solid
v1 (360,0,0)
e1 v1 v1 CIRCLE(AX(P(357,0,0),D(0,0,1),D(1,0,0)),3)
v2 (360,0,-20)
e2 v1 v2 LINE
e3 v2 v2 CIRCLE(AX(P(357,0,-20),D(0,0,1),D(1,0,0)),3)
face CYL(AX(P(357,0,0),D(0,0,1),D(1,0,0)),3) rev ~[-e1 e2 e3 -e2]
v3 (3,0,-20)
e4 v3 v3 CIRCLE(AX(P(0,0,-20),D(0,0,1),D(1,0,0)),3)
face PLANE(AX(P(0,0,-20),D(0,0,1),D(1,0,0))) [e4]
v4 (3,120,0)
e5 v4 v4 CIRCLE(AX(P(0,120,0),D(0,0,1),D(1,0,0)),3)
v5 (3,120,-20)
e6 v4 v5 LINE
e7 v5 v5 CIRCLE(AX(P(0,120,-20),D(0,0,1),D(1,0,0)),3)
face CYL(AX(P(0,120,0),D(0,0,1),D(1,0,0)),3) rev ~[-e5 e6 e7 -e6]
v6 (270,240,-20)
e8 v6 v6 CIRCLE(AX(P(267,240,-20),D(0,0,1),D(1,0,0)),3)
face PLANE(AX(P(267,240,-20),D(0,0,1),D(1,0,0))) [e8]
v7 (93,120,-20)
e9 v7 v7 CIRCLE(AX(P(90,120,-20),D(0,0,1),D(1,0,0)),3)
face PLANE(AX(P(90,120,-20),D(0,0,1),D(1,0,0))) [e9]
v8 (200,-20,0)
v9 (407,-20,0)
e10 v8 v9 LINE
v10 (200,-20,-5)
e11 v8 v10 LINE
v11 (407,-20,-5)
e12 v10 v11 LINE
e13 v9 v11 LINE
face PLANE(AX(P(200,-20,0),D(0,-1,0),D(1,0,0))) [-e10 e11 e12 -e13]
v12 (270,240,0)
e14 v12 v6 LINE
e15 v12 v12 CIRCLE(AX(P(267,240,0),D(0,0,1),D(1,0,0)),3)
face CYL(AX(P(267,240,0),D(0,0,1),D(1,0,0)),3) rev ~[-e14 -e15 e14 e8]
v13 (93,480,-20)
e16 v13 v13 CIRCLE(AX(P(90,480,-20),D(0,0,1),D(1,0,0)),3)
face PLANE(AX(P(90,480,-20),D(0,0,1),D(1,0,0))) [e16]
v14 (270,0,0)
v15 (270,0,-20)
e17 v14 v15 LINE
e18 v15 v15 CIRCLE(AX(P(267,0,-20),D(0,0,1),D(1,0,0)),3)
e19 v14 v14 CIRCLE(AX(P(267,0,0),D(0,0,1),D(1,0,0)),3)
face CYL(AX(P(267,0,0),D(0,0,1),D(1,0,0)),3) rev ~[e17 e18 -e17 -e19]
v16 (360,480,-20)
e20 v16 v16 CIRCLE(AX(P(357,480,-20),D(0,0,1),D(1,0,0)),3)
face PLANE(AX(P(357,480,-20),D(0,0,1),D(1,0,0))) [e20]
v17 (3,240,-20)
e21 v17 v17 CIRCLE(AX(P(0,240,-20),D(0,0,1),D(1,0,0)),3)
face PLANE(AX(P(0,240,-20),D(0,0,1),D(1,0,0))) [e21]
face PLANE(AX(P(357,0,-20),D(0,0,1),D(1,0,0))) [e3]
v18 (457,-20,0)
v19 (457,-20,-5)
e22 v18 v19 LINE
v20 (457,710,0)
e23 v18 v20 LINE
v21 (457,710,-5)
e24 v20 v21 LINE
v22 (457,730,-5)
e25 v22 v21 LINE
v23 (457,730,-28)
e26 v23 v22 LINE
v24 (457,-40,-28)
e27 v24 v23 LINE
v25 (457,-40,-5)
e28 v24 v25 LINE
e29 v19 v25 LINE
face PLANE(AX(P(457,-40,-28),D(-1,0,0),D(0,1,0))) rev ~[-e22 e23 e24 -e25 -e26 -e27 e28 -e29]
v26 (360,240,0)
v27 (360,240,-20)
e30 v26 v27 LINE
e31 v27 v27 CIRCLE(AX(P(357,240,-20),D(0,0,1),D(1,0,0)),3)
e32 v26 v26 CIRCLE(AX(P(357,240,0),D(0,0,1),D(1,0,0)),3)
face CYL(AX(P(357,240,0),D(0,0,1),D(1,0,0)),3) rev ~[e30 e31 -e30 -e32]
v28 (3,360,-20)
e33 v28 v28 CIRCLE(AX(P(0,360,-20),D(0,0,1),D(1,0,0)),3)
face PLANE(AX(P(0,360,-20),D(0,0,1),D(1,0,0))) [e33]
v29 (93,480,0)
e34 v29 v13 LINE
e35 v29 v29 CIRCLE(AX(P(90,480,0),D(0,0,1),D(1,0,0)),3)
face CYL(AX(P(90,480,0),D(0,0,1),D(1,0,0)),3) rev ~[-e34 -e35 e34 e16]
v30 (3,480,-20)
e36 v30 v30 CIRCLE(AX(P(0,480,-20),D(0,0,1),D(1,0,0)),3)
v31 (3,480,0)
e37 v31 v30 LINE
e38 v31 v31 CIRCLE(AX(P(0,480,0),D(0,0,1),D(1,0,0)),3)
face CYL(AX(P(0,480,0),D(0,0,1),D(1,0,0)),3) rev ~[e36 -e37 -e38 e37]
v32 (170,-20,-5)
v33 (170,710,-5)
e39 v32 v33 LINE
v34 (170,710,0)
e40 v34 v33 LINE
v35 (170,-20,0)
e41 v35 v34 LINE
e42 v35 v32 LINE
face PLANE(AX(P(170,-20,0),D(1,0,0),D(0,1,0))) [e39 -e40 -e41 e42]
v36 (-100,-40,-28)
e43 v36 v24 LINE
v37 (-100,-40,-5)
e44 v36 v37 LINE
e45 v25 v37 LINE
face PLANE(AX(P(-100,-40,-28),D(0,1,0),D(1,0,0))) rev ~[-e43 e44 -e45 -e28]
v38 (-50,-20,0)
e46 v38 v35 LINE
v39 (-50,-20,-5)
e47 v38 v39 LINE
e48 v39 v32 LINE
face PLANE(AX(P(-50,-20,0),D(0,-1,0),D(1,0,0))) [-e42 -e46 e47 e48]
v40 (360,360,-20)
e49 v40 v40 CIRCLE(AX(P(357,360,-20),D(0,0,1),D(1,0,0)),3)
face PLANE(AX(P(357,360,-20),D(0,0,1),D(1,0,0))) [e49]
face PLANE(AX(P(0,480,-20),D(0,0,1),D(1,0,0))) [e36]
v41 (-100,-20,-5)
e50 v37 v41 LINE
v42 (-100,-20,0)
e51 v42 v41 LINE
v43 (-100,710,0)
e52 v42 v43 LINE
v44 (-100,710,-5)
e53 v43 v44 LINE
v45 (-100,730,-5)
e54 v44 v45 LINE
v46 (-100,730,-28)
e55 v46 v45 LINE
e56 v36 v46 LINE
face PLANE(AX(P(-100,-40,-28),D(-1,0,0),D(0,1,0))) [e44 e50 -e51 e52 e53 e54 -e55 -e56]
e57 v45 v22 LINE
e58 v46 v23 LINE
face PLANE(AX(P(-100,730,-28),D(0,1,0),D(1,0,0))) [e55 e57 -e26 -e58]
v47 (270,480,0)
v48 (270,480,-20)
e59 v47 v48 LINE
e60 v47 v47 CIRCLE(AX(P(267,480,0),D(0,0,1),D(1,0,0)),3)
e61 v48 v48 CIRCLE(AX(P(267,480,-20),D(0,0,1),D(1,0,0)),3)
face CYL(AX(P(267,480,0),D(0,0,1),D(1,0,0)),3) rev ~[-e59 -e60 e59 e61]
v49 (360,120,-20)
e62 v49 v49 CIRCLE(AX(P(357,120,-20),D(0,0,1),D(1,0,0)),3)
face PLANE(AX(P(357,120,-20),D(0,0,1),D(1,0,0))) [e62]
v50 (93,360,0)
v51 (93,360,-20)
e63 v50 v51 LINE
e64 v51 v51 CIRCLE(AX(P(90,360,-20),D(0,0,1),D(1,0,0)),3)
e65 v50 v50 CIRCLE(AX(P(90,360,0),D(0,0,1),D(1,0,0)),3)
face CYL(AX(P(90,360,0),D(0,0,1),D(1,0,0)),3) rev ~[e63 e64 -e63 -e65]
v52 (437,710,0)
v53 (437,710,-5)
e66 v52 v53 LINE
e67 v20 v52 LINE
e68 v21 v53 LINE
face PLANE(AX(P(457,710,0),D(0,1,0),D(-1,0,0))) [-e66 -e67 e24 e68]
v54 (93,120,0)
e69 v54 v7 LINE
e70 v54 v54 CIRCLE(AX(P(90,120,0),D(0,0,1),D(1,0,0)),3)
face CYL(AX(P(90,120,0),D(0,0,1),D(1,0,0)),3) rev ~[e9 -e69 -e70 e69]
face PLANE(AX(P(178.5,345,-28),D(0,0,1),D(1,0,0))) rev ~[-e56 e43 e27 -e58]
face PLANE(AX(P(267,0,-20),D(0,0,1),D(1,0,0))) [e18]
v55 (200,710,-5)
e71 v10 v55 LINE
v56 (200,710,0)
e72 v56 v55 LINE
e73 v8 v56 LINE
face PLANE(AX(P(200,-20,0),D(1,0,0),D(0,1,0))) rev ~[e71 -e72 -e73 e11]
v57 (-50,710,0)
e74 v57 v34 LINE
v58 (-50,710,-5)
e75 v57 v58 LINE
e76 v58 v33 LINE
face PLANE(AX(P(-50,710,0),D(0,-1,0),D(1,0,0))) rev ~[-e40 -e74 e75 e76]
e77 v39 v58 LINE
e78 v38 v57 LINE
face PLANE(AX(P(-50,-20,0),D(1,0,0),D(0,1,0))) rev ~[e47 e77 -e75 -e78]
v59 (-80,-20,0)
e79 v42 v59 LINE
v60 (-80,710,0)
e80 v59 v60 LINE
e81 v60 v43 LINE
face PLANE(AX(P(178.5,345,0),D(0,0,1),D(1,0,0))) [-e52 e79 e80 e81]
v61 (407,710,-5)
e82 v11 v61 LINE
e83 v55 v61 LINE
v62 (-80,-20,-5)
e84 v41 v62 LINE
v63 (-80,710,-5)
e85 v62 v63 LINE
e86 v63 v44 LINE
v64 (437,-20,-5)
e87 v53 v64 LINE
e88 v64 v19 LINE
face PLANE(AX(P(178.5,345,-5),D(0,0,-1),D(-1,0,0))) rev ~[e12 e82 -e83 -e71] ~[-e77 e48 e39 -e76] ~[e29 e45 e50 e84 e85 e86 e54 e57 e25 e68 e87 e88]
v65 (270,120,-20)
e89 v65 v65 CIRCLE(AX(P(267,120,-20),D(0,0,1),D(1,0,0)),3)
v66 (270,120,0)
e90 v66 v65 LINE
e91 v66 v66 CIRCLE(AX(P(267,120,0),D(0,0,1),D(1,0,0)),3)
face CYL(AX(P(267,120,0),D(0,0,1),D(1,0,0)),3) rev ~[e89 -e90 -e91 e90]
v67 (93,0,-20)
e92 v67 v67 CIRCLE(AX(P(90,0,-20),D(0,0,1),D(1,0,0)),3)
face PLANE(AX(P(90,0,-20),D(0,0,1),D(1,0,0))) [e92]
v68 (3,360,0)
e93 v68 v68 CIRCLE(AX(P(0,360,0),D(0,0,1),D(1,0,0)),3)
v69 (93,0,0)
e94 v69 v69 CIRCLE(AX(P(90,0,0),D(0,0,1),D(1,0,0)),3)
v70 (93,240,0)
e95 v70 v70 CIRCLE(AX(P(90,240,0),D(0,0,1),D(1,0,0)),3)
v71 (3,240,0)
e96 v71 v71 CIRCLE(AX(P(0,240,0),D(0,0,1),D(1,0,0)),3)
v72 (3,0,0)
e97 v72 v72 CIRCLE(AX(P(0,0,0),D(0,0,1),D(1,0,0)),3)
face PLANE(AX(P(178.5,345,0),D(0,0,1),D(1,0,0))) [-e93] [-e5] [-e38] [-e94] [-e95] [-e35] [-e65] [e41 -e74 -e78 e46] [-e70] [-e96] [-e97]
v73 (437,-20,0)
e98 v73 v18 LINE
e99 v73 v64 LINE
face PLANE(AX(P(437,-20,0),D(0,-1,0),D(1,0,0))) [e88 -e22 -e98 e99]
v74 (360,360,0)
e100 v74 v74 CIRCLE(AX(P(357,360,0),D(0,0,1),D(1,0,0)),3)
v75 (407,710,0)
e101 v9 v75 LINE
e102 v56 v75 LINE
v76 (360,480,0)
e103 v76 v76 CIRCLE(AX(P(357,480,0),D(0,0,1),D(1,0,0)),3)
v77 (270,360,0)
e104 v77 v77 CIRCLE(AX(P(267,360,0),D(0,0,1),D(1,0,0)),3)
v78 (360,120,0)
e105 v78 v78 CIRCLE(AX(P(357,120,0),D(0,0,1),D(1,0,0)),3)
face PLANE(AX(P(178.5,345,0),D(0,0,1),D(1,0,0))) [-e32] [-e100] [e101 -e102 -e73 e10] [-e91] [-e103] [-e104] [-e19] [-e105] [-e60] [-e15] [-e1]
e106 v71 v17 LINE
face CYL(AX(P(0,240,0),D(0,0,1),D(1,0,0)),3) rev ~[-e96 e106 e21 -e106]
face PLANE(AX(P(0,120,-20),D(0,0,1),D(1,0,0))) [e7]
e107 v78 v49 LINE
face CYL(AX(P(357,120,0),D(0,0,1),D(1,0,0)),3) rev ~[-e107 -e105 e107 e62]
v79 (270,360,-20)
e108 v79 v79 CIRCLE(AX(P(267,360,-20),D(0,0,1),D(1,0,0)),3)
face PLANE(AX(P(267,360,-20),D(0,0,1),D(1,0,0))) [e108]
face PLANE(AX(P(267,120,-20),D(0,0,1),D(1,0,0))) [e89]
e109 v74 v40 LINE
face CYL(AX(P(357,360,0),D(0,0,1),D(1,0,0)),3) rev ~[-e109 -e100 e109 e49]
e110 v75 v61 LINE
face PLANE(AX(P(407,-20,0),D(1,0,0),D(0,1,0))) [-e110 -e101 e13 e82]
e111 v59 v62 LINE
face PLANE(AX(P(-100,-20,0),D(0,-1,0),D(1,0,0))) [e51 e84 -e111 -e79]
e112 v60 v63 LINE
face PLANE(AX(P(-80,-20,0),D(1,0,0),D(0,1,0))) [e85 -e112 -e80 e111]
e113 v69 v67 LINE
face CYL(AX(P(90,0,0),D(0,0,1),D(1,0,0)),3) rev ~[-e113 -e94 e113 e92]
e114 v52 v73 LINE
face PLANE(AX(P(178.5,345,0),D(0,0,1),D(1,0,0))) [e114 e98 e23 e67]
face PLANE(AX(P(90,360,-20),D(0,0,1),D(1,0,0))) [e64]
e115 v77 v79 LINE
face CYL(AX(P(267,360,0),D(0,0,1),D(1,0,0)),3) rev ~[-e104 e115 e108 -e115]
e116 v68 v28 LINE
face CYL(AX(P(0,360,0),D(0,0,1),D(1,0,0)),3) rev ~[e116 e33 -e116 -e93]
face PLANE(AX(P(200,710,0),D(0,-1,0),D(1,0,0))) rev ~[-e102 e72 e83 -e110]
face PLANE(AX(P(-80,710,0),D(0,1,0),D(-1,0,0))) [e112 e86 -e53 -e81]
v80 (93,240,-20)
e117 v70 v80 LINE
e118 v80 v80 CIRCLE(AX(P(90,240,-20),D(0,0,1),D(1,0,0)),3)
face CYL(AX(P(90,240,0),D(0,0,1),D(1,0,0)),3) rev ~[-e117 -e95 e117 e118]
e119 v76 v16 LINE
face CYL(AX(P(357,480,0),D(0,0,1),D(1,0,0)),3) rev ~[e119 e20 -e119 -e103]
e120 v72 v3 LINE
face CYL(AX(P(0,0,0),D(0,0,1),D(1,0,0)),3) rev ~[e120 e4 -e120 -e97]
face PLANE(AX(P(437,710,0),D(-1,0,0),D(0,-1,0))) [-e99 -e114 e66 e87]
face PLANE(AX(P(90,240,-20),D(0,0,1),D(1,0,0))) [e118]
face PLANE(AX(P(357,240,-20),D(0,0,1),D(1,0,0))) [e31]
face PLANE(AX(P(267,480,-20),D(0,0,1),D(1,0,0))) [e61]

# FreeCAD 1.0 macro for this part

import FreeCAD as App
import Part
import Sketcher


def add_polygon(sketch, points):
    """Adds a closed chain of lines whose ends are joined by coincident constraints."""
    first, n = sketch.GeometryCount, len(points)
    for a, b in zip(points, points[1:] + points[:1]):
        sketch.addGeometry(Part.LineSegment(App.Vector(*a, 0), App.Vector(*b, 0)), False)
    for i in range(n):
        sketch.addConstraint(Sketcher.Constraint("Coincident", first + i, 2, first + (i + 1) % n, 1))

doc = App.newDocument("Part")
body = doc.addObject("PartDesign::Body", "Body")

sketch1 = body.newObject("Sketcher::SketchObject", "Sketch")
sketch1.AttachmentSupport = (doc.getObject("XY_Plane"), [""])
sketch1.MapMode = "FlatFace"
add_polygon(sketch1, [(0, 770), (0, 0), (557, 0), (557, 770)])
sketch1.addConstraint([
    Sketcher.Constraint("Vertical", 0),
    Sketcher.Constraint("Horizontal", 1),
    Sketcher.Constraint("Vertical", 2),
    Sketcher.Constraint("Horizontal", 3),
    Sketcher.Constraint("Coincident", 0, 2, -1, 1),
    Sketcher.Constraint("DistanceX", 1, 1, 1, 2, 557.0),
    Sketcher.Constraint("DistanceY", 0, 2, 0, 1, 770.0),
])
pad1 = body.newObject("PartDesign::Pad", "Pad")
pad1.Profile = sketch1
pad1.Length = 28

sketch2 = body.newObject("Sketcher::SketchObject", "Sketch001")
sketch2.AttachmentSupport = (doc.getObject("XY_Plane"), [""])
sketch2.MapMode = "FlatFace"
sketch2.AttachmentOffset = App.Placement(App.Vector(0, 0, 28), App.Rotation())
add_polygon(sketch2, [(557, 770), (0, 770), (0, 750), (20, 750), (20, 20), (0, 20), (0, 0), (557, 0), (557, 20), (537, 20), (537, 750), (557, 750)])
add_polygon(sketch2, [(300, 20), (300, 750), (507, 750), (507, 20)])
add_polygon(sketch2, [(50, 20), (50, 750), (270, 750), (270, 20)])
sketch2.addConstraint([
    Sketcher.Constraint("Horizontal", 0),
    Sketcher.Constraint("Vertical", 1),
    Sketcher.Constraint("Horizontal", 2),
    Sketcher.Constraint("Vertical", 3),
    Sketcher.Constraint("Horizontal", 4),
    Sketcher.Constraint("Vertical", 5),
    Sketcher.Constraint("Horizontal", 6),
    Sketcher.Constraint("Vertical", 7),
    Sketcher.Constraint("Horizontal", 8),
    Sketcher.Constraint("Vertical", 9),
    Sketcher.Constraint("Horizontal", 10),
    Sketcher.Constraint("Vertical", 11),
    Sketcher.Constraint("Vertical", 12),
    Sketcher.Constraint("Horizontal", 13),
    Sketcher.Constraint("Vertical", 14),
    Sketcher.Constraint("Horizontal", 15),
    Sketcher.Constraint("Vertical", 16),
    Sketcher.Constraint("Horizontal", 17),
    Sketcher.Constraint("Vertical", 18),
    Sketcher.Constraint("Horizontal", 19),
    Sketcher.Constraint("Coincident", 5, 2, -1, 1),
    Sketcher.Constraint("PointOnObject", 0, 2, -2),
    Sketcher.Constraint("Horizontal", 4, 2, 7, 2),
    Sketcher.Constraint("Horizontal", 2, 2, 9, 2),
    Sketcher.Constraint("Horizontal", 10, 2, 12, 2),
    Sketcher.Constraint("Horizontal", 8, 2, 14, 2),
    Sketcher.Constraint("Horizontal", 13, 2, 16, 2),
    Sketcher.Constraint("Horizontal", 15, 2, 18, 2),
    Sketcher.Constraint("Vertical", 7, 2, 10, 2),
    Sketcher.Constraint("Equal", 4, 8),
    Sketcher.Constraint("Equal", 10, 1),
    Sketcher.Constraint("Equal", 1, 5),
    Sketcher.Constraint("DistanceX", 0, 2, 0, 1, 557.0),
    Sketcher.Constraint("DistanceX", 2, 1, 2, 2, 20.0),
    Sketcher.Constraint("DistanceX", 13, 1, 13, 2, 207.0),
    Sketcher.Constraint("DistanceX", 17, 1, 17, 2, 220.0),
    Sketcher.Constraint("DistanceY", 3, 2, 3, 1, 730.0),
    Sketcher.Constraint("DistanceX", -1, 1, 12, 2, 300.0),
    Sketcher.Constraint("DistanceX", -1, 1, 16, 2, 50.0),
])
pocket1 = body.newObject("PartDesign::Pocket", "Pocket")
pocket1.Profile = sketch2
pocket1.Length = 5

sketch3 = body.newObject("Sketcher::SketchObject", "Sketch002")
sketch3.AttachmentSupport = (doc.getObject("XY_Plane"), [""])
sketch3.MapMode = "FlatFace"
sketch3.AttachmentOffset = App.Placement(App.Vector(0, 0, 28), App.Rotation())
sketch3.addGeometry([
    Part.Circle(App.Vector(100, 40, 0), App.Vector(0, 0, 1), 3),
    Part.Circle(App.Vector(190, 40, 0), App.Vector(0, 0, 1), 3),
    Part.Circle(App.Vector(367, 40, 0), App.Vector(0, 0, 1), 3),
    Part.Circle(App.Vector(457, 40, 0), App.Vector(0, 0, 1), 3),
    Part.Circle(App.Vector(100, 160, 0), App.Vector(0, 0, 1), 3),
    Part.Circle(App.Vector(190, 160, 0), App.Vector(0, 0, 1), 3),
    Part.Circle(App.Vector(367, 160, 0), App.Vector(0, 0, 1), 3),
    Part.Circle(App.Vector(457, 160, 0), App.Vector(0, 0, 1), 3),
    Part.Circle(App.Vector(100, 280, 0), App.Vector(0, 0, 1), 3),
    Part.Circle(App.Vector(190, 280, 0), App.Vector(0, 0, 1), 3),
    Part.Circle(App.Vector(367, 280, 0), App.Vector(0, 0, 1), 3),
    Part.Circle(App.Vector(457, 280, 0), App.Vector(0, 0, 1), 3),
    Part.Circle(App.Vector(100, 400, 0), App.Vector(0, 0, 1), 3),
    Part.Circle(App.Vector(190, 400, 0), App.Vector(0, 0, 1), 3),
    Part.Circle(App.Vector(367, 400, 0), App.Vector(0, 0, 1), 3),
    Part.Circle(App.Vector(457, 400, 0), App.Vector(0, 0, 1), 3),
    Part.Circle(App.Vector(100, 520, 0), App.Vector(0, 0, 1), 3),
    Part.Circle(App.Vector(190, 520, 0), App.Vector(0, 0, 1), 3),
    Part.Circle(App.Vector(367, 520, 0), App.Vector(0, 0, 1), 3),
    Part.Circle(App.Vector(457, 520, 0), App.Vector(0, 0, 1), 3),
], False)
sketch3.addConstraint([
    Sketcher.Constraint("Equal", 0, 1),
    Sketcher.Constraint("Equal", 1, 2),
    Sketcher.Constraint("Equal", 2, 3),
    Sketcher.Constraint("Equal", 3, 4),
    Sketcher.Constraint("Equal", 4, 5),
    Sketcher.Constraint("Equal", 5, 6),
    Sketcher.Constraint("Equal", 6, 7),
    Sketcher.Constraint("Equal", 7, 8),
    Sketcher.Constraint("Equal", 8, 9),
    Sketcher.Constraint("Equal", 9, 10),
    Sketcher.Constraint("Equal", 10, 11),
    Sketcher.Constraint("Equal", 11, 12),
    Sketcher.Constraint("Equal", 12, 13),
    Sketcher.Constraint("Equal", 13, 14),
    Sketcher.Constraint("Equal", 14, 15),
    Sketcher.Constraint("Equal", 15, 16),
    Sketcher.Constraint("Equal", 16, 17),
    Sketcher.Constraint("Equal", 17, 18),
    Sketcher.Constraint("Equal", 18, 19),
    Sketcher.Constraint("Horizontal", 0, 3, 1, 3),
    Sketcher.Constraint("Horizontal", 1, 3, 2, 3),
    Sketcher.Constraint("Horizontal", 2, 3, 3, 3),
    Sketcher.Constraint("Horizontal", 4, 3, 5, 3),
    Sketcher.Constraint("Horizontal", 5, 3, 6, 3),
    Sketcher.Constraint("Horizontal", 6, 3, 7, 3),
    Sketcher.Constraint("Horizontal", 8, 3, 9, 3),
    Sketcher.Constraint("Horizontal", 9, 3, 10, 3),
    Sketcher.Constraint("Horizontal", 10, 3, 11, 3),
    Sketcher.Constraint("Horizontal", 12, 3, 13, 3),
    Sketcher.Constraint("Horizontal", 13, 3, 14, 3),
    Sketcher.Constraint("Horizontal", 14, 3, 15, 3),
    Sketcher.Constraint("Horizontal", 16, 3, 17, 3),
    Sketcher.Constraint("Horizontal", 17, 3, 18, 3),
    Sketcher.Constraint("Horizontal", 18, 3, 19, 3),
    Sketcher.Constraint("Vertical", 0, 3, 4, 3),
    Sketcher.Constraint("Vertical", 1, 3, 5, 3),
    Sketcher.Constraint("Vertical", 2, 3, 6, 3),
    Sketcher.Constraint("Vertical", 3, 3, 7, 3),
    Sketcher.Constraint("Vertical", 4, 3, 8, 3),
    Sketcher.Constraint("Vertical", 5, 3, 9, 3),
    Sketcher.Constraint("Vertical", 6, 3, 10, 3),
    Sketcher.Constraint("Vertical", 7, 3, 11, 3),
    Sketcher.Constraint("Vertical", 8, 3, 12, 3),
    Sketcher.Constraint("Vertical", 9, 3, 13, 3),
    Sketcher.Constraint("Vertical", 10, 3, 14, 3),
    Sketcher.Constraint("Vertical", 11, 3, 15, 3),
    Sketcher.Constraint("Vertical", 12, 3, 16, 3),
    Sketcher.Constraint("Vertical", 13, 3, 17, 3),
    Sketcher.Constraint("Vertical", 14, 3, 18, 3),
    Sketcher.Constraint("Vertical", 15, 3, 19, 3),
    Sketcher.Constraint("Diameter", 0, 6.0),
    Sketcher.Constraint("DistanceX", -1, 1, 0, 3, 100.0),
    Sketcher.Constraint("DistanceY", -1, 1, 0, 3, 40.0),
    Sketcher.Constraint("DistanceX", -1, 1, 1, 3, 190.0),
    Sketcher.Constraint("DistanceX", -1, 1, 2, 3, 367.0),
    Sketcher.Constraint("DistanceX", -1, 1, 3, 3, 457.0),
    Sketcher.Constraint("DistanceY", -1, 1, 4, 3, 160.0),
    Sketcher.Constraint("DistanceY", -1, 1, 8, 3, 280.0),
    Sketcher.Constraint("DistanceY", -1, 1, 12, 3, 400.0),
    Sketcher.Constraint("DistanceY", -1, 1, 16, 3, 520.0),
])
pocket2 = body.newObject("PartDesign::Pocket", "Pocket001")
pocket2.Profile = sketch3
pocket2.Length = 20
body2 = doc.addObject("PartDesign::Body", "Body001")
doc.recompute()

body.Placement = App.Placement(App.Vector(-100, -40, -28), App.Rotation(App.Vector(0, 0, 1), 0))
boolean = body2.newObject("PartDesign::Boolean", "Boolean")
boolean.Type = "Fuse"
boolean.addObjects([body])

doc.recompute()
